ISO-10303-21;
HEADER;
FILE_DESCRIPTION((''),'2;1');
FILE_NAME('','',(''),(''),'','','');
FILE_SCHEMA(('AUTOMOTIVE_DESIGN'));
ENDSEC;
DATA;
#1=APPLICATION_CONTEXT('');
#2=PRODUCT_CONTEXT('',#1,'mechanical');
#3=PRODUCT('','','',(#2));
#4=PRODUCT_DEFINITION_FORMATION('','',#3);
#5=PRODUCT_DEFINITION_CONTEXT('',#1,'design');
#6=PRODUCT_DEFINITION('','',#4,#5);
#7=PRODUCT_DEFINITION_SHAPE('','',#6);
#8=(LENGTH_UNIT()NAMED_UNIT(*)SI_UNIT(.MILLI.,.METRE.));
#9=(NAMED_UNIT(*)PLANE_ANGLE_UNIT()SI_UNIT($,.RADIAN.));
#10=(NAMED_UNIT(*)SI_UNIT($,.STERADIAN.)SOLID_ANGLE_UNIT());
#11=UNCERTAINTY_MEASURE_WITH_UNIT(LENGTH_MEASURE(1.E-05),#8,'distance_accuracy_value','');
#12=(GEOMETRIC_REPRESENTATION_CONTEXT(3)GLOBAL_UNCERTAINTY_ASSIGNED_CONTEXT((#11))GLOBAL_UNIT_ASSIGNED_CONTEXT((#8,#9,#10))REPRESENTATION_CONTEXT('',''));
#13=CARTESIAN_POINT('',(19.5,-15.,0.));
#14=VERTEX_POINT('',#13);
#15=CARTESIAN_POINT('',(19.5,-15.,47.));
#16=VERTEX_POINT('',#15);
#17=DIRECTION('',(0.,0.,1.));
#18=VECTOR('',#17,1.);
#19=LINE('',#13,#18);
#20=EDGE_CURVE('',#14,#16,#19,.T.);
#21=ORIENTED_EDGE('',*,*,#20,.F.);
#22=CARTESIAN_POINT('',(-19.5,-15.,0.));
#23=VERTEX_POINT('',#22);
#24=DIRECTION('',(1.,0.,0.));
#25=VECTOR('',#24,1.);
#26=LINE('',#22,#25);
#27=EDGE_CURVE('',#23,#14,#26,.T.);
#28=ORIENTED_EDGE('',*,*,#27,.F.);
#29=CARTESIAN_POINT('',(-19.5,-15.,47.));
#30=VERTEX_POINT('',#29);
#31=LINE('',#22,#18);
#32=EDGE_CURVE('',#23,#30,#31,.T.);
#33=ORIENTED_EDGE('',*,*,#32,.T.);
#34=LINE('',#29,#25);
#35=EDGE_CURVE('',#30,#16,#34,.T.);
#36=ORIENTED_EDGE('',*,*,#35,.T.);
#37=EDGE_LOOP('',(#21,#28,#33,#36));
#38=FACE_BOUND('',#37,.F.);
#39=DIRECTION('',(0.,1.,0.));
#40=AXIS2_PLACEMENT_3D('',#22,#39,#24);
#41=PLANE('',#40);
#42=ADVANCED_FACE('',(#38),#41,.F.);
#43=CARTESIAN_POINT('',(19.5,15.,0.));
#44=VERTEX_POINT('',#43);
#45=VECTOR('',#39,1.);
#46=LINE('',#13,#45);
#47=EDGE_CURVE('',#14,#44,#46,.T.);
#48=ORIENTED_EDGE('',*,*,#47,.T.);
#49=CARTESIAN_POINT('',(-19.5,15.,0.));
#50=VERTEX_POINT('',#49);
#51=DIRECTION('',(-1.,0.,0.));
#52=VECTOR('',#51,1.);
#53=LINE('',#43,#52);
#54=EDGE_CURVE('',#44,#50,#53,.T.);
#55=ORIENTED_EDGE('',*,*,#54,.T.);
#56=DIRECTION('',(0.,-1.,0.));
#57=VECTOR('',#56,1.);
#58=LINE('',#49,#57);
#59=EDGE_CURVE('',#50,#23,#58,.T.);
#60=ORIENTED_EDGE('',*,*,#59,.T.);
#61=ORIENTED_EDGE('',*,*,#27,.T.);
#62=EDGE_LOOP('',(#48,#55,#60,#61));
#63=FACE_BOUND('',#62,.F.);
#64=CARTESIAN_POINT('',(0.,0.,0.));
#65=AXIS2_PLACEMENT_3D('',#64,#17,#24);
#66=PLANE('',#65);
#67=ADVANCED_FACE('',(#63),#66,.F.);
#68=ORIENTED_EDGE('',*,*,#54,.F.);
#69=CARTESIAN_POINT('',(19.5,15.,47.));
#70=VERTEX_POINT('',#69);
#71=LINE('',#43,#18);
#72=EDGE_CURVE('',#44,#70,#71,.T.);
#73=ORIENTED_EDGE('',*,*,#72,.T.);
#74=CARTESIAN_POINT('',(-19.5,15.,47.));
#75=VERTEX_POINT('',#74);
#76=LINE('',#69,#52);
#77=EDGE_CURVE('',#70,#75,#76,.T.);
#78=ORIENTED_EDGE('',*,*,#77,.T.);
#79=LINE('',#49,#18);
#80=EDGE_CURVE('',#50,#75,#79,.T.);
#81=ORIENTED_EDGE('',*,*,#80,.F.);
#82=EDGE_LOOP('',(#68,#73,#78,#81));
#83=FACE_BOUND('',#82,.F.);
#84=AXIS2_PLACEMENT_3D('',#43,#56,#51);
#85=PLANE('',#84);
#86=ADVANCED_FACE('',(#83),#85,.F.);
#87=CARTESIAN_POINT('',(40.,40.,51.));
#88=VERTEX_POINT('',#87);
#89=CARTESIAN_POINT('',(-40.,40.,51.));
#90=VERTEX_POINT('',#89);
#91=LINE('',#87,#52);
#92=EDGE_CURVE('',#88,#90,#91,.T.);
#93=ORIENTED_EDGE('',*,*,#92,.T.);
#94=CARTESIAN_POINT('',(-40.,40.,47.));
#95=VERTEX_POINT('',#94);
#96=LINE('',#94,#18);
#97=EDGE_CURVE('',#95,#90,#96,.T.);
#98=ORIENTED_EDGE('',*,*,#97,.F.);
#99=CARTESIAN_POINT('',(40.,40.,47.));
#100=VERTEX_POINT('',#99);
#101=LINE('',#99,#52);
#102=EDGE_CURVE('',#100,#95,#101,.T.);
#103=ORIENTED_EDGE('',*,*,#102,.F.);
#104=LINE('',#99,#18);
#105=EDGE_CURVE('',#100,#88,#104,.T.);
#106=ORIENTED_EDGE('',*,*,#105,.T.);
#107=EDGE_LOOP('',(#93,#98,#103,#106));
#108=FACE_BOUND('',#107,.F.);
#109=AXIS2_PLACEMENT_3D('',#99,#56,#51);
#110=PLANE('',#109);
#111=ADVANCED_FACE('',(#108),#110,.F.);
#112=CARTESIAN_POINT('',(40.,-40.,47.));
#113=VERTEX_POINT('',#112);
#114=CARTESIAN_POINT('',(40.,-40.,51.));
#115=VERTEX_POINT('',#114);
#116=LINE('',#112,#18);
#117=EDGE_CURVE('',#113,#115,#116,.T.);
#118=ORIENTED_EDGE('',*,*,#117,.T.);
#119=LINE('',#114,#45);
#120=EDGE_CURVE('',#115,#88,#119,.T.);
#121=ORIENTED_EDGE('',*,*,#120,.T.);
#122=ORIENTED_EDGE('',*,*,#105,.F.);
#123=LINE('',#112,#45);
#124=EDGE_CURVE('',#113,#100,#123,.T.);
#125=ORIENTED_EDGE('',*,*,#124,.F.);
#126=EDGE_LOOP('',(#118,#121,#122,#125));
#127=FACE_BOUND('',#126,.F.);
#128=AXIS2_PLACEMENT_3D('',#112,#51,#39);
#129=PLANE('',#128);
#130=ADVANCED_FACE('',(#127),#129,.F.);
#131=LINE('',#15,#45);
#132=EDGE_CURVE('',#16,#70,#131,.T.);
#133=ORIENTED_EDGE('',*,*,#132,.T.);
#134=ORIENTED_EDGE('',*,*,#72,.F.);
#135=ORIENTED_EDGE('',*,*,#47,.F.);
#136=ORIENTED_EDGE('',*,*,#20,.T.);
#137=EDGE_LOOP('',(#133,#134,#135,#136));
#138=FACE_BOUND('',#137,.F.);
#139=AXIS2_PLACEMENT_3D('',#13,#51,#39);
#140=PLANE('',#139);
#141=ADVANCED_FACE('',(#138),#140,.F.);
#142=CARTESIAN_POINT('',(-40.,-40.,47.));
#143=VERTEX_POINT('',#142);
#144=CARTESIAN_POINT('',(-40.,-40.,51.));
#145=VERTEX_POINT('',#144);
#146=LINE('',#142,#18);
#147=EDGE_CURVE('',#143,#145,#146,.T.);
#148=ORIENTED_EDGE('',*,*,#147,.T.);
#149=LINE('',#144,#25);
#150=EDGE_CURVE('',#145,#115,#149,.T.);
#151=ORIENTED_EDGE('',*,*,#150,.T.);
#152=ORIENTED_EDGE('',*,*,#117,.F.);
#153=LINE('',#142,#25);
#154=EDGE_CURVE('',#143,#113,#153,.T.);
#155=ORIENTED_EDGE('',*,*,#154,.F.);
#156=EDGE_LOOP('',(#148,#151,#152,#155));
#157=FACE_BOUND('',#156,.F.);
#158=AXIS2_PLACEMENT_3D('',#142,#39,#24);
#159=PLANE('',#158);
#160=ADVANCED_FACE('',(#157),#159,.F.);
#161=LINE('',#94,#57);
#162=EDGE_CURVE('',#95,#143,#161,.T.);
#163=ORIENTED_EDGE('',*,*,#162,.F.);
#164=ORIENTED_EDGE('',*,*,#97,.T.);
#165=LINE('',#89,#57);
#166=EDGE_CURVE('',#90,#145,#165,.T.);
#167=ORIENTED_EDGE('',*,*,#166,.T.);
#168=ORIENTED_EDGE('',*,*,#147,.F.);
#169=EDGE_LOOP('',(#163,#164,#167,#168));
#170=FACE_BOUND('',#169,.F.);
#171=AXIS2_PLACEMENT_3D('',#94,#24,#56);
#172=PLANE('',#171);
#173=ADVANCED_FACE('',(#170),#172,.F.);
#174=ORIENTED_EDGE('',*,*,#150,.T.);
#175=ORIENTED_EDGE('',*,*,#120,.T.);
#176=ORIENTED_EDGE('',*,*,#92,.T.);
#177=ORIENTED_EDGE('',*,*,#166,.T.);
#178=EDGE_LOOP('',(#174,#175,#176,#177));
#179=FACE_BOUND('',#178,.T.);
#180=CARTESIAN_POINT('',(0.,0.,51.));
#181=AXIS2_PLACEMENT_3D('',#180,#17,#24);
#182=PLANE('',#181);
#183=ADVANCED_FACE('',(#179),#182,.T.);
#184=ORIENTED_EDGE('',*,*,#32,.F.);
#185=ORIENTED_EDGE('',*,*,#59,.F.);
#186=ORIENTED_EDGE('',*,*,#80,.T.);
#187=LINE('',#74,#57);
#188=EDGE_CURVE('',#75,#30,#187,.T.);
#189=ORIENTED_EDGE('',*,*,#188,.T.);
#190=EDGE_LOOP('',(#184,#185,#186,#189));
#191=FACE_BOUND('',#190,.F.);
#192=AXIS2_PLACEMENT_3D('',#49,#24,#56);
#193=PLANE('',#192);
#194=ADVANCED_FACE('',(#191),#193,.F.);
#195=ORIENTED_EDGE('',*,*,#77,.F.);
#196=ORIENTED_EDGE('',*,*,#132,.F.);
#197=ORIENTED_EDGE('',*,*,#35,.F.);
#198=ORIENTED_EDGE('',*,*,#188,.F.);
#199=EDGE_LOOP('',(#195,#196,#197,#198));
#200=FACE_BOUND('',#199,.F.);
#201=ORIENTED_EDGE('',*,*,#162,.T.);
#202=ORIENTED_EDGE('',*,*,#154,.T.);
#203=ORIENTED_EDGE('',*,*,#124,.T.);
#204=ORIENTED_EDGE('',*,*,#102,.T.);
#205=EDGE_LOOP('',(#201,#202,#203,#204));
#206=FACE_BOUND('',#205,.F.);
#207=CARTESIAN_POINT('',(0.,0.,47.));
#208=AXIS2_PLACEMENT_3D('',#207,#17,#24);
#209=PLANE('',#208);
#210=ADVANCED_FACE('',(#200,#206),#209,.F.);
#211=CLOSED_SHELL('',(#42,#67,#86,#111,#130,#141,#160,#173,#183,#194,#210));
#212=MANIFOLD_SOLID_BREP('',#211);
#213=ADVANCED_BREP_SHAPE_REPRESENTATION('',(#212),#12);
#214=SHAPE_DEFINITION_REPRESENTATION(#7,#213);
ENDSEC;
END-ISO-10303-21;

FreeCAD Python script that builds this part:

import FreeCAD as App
import Part
import Sketcher
Q = App.Units.Quantity


def add_polygon(sketch, points):
    """Adds a closed chain of lines whose ends are joined by coincident constraints."""
    first, n = sketch.GeometryCount, len(points)
    for a, b in zip(points, points[1:] + points[:1]):
        sketch.addGeometry(Part.LineSegment(App.Vector(*a, 0), App.Vector(*b, 0)), False)
    for i in range(n):
        sketch.addConstraint(Sketcher.Constraint("Coincident", first + i, 2, first + (i + 1) % n, 1))

doc = App.newDocument("Part")
body = doc.addObject("PartDesign::Body", "Body")

sketch1 = doc.addObject("Sketcher::SketchObject", "Sketch")
body.addObject(sketch1)
sketch1.AttachmentSupport = (doc.XY_Plane, [""])
sketch1.MapMode = "FlatFace"
add_polygon(sketch1, [(-19.5, 15), (-19.5, -15), (19.5, -15), (19.5, 15)])
sketch1.addConstraint([
    Sketcher.Constraint("Vertical", 0),
    Sketcher.Constraint("Horizontal", 1),
    Sketcher.Constraint("Vertical", 2),
    Sketcher.Constraint("Horizontal", 3),
    Sketcher.Constraint("Symmetric", 0, 2, 2, 2, -1, 1),
    Sketcher.Constraint("DistanceX", 1, 1, 1, 2, Q("39 mm")),
    Sketcher.Constraint("DistanceY", 0, 2, 0, 1, Q("30 mm")),
])
pad1 = doc.addObject("PartDesign::Pad", "Pad")
body.addObject(pad1)
pad1.Profile = sketch1
pad1.Length = 47

sketch2 = doc.addObject("Sketcher::SketchObject", "Sketch001")
body.addObject(sketch2)
sketch2.AttachmentSupport = (doc.XY_Plane, [""])
sketch2.MapMode = "FlatFace"
sketch2.AttachmentOffset = App.Placement(App.Vector(0, 0, 47), App.Rotation())
add_polygon(sketch2, [(-40, 40), (-40, -40), (40, -40), (40, 40)])
sketch2.addConstraint([
    Sketcher.Constraint("Vertical", 0),
    Sketcher.Constraint("Horizontal", 1),
    Sketcher.Constraint("Vertical", 2),
    Sketcher.Constraint("Horizontal", 3),
    Sketcher.Constraint("Symmetric", 0, 2, 2, 2, -1, 1),
    Sketcher.Constraint("Equal", 3, 0),
    Sketcher.Constraint("DistanceX", 1, 1, 1, 2, Q("80 mm")),
])
pad2 = doc.addObject("PartDesign::Pad", "Pad001")
body.addObject(pad2)
pad2.Profile = sketch2
pad2.Length = 4

doc.recompute()
